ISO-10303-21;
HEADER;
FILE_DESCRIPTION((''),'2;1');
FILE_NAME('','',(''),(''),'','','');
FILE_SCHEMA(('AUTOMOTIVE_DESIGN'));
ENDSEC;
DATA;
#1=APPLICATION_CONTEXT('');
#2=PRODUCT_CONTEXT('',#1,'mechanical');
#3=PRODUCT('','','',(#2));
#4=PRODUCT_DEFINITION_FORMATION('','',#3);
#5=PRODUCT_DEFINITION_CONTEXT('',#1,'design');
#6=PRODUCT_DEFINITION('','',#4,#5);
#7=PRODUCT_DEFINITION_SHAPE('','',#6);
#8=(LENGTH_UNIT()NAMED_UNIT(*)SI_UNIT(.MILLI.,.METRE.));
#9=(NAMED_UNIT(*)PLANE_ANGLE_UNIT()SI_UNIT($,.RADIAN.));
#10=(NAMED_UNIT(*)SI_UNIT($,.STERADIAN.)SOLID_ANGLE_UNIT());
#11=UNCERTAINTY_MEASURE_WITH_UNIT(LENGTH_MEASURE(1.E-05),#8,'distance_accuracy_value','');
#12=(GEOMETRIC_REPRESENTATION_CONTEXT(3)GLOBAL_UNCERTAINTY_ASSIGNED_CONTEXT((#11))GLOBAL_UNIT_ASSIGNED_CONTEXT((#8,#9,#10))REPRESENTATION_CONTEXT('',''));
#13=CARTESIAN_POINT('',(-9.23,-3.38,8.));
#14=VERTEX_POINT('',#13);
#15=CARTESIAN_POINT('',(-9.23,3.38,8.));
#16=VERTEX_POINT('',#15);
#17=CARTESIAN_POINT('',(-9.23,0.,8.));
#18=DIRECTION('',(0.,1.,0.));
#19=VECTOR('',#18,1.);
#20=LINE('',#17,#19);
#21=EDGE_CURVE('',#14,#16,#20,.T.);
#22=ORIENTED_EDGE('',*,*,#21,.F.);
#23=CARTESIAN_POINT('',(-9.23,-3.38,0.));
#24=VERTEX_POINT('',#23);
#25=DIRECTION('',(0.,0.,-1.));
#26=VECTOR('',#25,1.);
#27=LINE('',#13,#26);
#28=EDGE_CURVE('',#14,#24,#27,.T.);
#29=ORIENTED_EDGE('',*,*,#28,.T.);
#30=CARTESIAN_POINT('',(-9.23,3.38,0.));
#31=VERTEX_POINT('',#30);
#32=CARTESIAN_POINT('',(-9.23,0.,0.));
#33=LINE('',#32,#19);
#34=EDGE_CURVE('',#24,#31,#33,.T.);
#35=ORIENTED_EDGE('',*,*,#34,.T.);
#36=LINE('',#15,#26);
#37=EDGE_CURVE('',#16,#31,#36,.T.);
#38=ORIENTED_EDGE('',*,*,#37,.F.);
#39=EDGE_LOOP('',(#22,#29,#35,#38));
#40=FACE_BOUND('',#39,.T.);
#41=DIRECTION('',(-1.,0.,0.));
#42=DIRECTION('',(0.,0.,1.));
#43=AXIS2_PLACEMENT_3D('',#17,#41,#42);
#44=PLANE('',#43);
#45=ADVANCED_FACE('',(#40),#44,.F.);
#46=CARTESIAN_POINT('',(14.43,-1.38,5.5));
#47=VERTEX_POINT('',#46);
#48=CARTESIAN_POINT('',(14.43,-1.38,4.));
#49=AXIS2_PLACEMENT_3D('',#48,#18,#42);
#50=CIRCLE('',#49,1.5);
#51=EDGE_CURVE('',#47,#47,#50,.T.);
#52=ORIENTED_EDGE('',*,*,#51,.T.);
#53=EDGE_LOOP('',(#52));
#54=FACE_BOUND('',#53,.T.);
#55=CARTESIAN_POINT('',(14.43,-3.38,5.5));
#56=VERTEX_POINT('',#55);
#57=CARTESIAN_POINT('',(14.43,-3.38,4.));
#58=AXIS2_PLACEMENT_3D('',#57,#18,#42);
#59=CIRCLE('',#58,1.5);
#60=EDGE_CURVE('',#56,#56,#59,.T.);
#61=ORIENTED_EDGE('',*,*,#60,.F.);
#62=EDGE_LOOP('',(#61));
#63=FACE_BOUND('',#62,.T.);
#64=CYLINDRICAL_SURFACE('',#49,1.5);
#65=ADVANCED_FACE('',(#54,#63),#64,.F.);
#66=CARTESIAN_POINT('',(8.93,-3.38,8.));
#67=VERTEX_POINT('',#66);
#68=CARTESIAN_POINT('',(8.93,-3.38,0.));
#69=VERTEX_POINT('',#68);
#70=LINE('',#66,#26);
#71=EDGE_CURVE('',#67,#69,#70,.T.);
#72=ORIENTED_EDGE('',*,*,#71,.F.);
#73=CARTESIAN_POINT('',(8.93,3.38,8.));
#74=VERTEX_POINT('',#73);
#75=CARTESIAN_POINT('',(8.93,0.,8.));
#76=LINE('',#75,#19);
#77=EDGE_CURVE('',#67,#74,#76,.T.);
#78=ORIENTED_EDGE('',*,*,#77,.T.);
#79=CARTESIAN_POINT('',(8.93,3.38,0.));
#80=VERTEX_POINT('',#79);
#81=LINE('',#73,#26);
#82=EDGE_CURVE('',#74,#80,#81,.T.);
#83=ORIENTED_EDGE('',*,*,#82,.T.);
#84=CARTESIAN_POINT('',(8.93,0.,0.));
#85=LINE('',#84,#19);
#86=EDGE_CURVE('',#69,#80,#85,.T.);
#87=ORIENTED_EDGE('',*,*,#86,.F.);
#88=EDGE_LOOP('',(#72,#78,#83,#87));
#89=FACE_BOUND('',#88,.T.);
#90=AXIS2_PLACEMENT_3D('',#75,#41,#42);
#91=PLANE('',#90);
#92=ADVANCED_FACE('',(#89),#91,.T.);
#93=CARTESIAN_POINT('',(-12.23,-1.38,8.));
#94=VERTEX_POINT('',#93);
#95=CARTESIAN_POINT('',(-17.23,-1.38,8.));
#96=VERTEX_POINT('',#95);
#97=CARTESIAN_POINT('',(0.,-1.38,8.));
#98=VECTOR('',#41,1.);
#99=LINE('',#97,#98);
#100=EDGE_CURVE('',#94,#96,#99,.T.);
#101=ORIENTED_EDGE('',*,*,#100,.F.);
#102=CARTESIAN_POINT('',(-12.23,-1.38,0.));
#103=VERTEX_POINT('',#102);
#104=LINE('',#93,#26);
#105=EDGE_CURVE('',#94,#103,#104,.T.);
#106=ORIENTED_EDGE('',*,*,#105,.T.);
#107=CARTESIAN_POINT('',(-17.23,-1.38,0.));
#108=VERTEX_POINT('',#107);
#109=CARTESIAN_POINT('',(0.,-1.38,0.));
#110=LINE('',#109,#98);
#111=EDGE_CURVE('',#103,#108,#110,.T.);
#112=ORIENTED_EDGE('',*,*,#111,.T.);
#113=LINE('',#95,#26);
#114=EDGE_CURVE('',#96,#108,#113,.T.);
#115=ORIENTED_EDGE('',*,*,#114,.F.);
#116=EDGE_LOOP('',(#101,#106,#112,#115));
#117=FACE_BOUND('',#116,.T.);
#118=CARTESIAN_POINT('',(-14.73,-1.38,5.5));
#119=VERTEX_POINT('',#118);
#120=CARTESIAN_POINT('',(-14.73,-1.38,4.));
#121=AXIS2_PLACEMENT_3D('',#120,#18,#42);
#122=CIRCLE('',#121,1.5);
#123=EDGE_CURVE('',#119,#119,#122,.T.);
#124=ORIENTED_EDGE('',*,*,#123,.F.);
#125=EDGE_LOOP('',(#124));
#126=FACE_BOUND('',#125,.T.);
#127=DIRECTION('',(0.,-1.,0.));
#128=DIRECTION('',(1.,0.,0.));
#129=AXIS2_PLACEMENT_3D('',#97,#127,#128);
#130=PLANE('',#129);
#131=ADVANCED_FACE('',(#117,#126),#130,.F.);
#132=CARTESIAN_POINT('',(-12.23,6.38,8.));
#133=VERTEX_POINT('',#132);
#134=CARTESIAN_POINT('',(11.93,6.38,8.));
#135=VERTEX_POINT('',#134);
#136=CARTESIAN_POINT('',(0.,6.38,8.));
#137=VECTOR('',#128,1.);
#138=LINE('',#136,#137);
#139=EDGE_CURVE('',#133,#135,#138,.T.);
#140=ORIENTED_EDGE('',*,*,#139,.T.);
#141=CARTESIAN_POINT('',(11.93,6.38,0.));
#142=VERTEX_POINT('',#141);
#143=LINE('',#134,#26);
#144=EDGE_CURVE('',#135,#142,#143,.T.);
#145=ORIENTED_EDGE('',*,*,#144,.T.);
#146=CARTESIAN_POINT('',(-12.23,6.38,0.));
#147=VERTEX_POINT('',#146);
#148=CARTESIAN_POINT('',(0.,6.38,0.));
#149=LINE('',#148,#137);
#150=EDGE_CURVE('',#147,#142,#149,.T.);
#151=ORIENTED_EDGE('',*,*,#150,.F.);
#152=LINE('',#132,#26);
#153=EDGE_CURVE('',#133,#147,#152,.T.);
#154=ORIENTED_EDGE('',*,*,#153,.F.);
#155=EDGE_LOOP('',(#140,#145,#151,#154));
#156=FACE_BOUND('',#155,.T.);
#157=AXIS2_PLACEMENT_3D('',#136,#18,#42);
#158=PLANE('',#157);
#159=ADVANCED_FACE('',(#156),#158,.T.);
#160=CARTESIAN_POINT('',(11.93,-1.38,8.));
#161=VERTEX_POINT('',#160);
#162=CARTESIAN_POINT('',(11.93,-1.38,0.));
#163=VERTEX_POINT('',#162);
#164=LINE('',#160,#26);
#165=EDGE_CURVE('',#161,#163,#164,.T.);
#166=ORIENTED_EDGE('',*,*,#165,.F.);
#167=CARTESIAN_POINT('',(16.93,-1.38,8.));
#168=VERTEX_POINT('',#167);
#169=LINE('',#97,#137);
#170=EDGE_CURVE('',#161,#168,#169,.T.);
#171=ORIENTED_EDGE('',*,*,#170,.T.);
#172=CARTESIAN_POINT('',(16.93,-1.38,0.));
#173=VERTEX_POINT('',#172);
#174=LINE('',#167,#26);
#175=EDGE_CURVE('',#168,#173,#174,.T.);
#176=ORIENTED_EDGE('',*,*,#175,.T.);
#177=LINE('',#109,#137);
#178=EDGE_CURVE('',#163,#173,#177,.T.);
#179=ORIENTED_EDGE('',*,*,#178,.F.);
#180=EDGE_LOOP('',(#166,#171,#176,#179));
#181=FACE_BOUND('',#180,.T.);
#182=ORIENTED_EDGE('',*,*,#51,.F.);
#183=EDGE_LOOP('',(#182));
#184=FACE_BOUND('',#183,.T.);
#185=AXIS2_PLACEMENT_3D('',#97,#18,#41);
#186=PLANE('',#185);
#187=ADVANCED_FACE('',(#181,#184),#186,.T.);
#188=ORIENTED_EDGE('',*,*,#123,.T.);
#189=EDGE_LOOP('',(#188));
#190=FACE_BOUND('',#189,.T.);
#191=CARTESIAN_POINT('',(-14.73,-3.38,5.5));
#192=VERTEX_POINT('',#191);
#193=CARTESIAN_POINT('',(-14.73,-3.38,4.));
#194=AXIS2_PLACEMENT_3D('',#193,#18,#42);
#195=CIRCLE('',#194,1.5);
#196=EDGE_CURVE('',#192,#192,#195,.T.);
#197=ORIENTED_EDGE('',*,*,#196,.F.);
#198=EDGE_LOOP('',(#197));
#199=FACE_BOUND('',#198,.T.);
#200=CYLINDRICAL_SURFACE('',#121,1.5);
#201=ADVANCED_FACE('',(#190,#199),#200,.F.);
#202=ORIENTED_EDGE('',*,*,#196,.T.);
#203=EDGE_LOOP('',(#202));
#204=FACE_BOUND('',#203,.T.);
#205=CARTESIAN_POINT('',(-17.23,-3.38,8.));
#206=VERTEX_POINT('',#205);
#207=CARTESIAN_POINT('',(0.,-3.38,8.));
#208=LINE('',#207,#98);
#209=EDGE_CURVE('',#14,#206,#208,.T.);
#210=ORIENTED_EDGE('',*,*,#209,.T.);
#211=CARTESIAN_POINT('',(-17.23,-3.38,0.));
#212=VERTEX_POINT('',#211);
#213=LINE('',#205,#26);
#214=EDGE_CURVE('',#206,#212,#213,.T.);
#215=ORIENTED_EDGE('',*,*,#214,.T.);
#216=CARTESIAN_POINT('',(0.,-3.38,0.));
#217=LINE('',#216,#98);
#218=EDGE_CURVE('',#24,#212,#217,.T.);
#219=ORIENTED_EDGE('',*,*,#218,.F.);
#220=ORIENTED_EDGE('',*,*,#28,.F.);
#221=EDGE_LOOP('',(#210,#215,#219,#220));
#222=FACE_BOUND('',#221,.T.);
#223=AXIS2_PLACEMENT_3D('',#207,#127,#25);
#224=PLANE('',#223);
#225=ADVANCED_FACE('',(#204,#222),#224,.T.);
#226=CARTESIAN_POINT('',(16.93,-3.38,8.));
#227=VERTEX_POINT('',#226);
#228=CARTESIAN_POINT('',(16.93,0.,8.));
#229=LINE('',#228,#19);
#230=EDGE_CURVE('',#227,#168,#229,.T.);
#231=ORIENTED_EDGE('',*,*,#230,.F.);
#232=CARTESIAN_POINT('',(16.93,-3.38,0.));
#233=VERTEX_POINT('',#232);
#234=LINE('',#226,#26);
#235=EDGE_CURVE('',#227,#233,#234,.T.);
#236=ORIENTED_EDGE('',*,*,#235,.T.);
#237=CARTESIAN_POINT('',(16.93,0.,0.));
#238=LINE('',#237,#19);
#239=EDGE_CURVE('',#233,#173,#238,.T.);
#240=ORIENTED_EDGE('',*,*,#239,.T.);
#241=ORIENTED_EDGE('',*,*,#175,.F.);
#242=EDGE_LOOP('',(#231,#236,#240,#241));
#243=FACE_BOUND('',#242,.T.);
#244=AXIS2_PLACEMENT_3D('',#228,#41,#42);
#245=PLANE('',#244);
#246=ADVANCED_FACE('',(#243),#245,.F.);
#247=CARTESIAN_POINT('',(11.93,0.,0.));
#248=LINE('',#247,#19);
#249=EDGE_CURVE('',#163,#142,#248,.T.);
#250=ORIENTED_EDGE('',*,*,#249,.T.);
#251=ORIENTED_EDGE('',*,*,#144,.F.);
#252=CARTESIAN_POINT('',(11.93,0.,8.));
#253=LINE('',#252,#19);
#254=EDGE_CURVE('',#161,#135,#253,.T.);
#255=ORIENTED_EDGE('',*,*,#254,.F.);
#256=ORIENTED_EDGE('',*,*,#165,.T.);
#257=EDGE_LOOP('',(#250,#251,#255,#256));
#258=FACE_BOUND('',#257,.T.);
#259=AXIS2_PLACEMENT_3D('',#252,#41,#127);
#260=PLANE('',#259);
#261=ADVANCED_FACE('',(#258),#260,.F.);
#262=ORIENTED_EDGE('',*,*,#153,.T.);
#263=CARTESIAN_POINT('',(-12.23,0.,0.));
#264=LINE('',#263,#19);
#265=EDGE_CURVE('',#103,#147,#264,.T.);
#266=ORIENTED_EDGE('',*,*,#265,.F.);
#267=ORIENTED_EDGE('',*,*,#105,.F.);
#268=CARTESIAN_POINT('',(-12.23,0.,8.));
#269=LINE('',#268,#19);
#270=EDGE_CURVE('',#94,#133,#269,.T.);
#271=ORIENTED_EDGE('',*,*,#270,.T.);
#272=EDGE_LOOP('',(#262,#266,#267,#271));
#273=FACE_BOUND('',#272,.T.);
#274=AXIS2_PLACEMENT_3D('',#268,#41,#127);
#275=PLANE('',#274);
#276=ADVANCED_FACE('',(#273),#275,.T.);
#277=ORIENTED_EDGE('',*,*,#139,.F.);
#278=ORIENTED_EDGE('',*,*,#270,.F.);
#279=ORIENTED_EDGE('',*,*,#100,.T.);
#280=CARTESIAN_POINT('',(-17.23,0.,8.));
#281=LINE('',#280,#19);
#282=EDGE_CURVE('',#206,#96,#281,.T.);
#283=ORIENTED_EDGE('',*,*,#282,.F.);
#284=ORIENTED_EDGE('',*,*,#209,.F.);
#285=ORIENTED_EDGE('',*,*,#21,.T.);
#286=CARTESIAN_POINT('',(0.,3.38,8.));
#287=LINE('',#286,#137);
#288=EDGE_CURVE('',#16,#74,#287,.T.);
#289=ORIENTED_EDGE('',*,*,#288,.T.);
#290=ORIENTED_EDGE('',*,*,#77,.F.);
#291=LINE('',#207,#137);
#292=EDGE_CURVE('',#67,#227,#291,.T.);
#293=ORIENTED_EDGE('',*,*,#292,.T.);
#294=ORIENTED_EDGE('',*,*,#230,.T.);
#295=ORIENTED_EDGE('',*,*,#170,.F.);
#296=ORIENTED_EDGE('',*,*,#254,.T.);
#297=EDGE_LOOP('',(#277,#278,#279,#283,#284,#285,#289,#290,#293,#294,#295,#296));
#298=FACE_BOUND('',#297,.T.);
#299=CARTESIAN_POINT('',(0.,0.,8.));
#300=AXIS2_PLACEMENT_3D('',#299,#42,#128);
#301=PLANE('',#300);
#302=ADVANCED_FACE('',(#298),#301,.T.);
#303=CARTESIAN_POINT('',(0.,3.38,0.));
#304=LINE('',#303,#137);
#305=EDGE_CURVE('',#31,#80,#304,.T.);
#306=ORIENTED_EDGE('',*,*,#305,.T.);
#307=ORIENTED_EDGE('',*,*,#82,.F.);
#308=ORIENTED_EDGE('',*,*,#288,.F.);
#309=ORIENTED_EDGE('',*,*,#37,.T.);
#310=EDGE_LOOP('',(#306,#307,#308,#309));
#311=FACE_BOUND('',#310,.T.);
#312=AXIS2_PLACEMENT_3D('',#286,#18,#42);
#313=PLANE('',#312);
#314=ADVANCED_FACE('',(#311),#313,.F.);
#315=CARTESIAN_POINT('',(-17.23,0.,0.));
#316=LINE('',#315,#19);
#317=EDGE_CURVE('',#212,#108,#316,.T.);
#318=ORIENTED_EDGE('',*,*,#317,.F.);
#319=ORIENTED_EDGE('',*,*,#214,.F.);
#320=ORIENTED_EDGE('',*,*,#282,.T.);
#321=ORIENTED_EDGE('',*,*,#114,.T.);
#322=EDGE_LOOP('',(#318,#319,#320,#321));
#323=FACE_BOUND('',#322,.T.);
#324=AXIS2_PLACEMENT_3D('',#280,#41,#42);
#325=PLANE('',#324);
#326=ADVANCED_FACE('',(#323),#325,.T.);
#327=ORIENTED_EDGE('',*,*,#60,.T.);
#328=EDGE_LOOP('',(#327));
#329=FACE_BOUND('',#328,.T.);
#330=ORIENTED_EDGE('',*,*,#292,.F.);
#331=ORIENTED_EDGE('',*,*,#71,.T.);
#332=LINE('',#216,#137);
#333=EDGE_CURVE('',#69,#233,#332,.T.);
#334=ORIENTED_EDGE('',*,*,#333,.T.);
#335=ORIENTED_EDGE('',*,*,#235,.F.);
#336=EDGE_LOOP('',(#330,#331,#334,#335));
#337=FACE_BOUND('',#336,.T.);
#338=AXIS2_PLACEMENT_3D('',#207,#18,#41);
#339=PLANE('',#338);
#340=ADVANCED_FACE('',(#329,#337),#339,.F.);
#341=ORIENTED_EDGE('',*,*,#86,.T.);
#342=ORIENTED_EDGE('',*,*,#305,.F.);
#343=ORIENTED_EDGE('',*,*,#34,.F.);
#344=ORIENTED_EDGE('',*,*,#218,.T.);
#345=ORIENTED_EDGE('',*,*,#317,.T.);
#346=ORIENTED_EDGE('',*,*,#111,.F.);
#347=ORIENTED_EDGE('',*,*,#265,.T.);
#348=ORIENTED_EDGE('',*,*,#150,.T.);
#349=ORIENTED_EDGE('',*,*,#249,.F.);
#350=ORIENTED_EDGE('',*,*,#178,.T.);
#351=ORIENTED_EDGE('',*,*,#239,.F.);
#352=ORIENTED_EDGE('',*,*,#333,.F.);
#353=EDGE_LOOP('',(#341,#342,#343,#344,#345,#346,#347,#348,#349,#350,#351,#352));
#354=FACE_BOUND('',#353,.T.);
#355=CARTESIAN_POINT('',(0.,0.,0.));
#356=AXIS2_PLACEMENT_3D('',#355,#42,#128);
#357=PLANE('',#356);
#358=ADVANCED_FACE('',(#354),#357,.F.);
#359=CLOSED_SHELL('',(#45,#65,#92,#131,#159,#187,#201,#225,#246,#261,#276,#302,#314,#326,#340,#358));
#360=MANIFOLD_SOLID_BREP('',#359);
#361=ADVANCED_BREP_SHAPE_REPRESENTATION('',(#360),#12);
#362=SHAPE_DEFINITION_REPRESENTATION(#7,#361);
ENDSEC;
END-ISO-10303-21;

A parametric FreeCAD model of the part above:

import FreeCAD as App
import Part
import Sketcher
Q = App.Units.Quantity

doc = App.newDocument("Part")
body = doc.addObject("PartDesign::Body", "Body")

# Sketch on XY plane
sketch1 = doc.addObject("Sketcher::SketchObject", "Sketch")
body.addObject(sketch1)
sketch1.AttachmentSupport = (doc.XY_Plane, [""])
sketch1.MapMode = "FlatFace"
sketch1.addGeometry(Part.LineSegment(App.Vector(16.9, -3.4, 0), App.Vector(16.9, -1.4, 0)), False)
sketch1.addGeometry(Part.LineSegment(App.Vector(16.9, -1.4, 0), App.Vector(11.9, -1.4, 0)), False)
sketch1.addGeometry(Part.LineSegment(App.Vector(11.9, -1.4, 0), App.Vector(11.9, 6.4, 0)), False)
sketch1.addGeometry(Part.LineSegment(App.Vector(11.9, 6.4, 0), App.Vector(-12.2, 6.4, 0)), False)
sketch1.addGeometry(Part.LineSegment(App.Vector(-12.2, 6.4, 0), App.Vector(-12.2, -1.4, 0)), False)
sketch1.addGeometry(Part.LineSegment(App.Vector(-12.2, -1.4, 0), App.Vector(-17.2, -1.4, 0)), False)
sketch1.addGeometry(Part.LineSegment(App.Vector(-17.2, -1.4, 0), App.Vector(-17.2, -3.4, 0)), False)
sketch1.addGeometry(Part.LineSegment(App.Vector(-17.2, -3.4, 0), App.Vector(-9.2, -3.4, 0)), False)
sketch1.addGeometry(Part.LineSegment(App.Vector(-9.2, -3.4, 0), App.Vector(-9.2, 3.4, 0)), False)
sketch1.addGeometry(Part.LineSegment(App.Vector(-9.2, 3.4, 0), App.Vector(8.9, 3.4, 0)), False)
sketch1.addGeometry(Part.LineSegment(App.Vector(8.9, 3.4, 0), App.Vector(8.9, -3.4, 0)), False)
sketch1.addGeometry(Part.LineSegment(App.Vector(8.9, -3.4, 0), App.Vector(16.9, -3.4, 0)), False)
sketch1.addConstraint(Sketcher.Constraint("Coincident", 0, 2, 1, 1))
sketch1.addConstraint(Sketcher.Constraint("Coincident", 1, 2, 2, 1))
sketch1.addConstraint(Sketcher.Constraint("Coincident", 2, 2, 3, 1))
sketch1.addConstraint(Sketcher.Constraint("Coincident", 3, 2, 4, 1))
sketch1.addConstraint(Sketcher.Constraint("Coincident", 4, 2, 5, 1))
sketch1.addConstraint(Sketcher.Constraint("Coincident", 5, 2, 6, 1))
sketch1.addConstraint(Sketcher.Constraint("Coincident", 6, 2, 7, 1))
sketch1.addConstraint(Sketcher.Constraint("Coincident", 7, 2, 8, 1))
sketch1.addConstraint(Sketcher.Constraint("Coincident", 8, 2, 9, 1))
sketch1.addConstraint(Sketcher.Constraint("Coincident", 9, 2, 10, 1))
sketch1.addConstraint(Sketcher.Constraint("Coincident", 10, 2, 11, 1))
sketch1.addConstraint(Sketcher.Constraint("Coincident", 11, 2, 0, 1))
sketch1.addConstraint(Sketcher.Constraint("Vertical", 0))
sketch1.addConstraint(Sketcher.Constraint("Horizontal", 1))
sketch1.addConstraint(Sketcher.Constraint("Vertical", 2))
sketch1.addConstraint(Sketcher.Constraint("Horizontal", 3))
sketch1.addConstraint(Sketcher.Constraint("Vertical", 4))
sketch1.addConstraint(Sketcher.Constraint("Horizontal", 5))
sketch1.addConstraint(Sketcher.Constraint("Vertical", 6))
sketch1.addConstraint(Sketcher.Constraint("Horizontal", 7))
sketch1.addConstraint(Sketcher.Constraint("Vertical", 8))
sketch1.addConstraint(Sketcher.Constraint("Horizontal", 9))
sketch1.addConstraint(Sketcher.Constraint("Vertical", 10))
sketch1.addConstraint(Sketcher.Constraint("Horizontal", 11))
sketch1.addConstraint(Sketcher.Constraint("Horizontal", 1, 2, 4, 2))
sketch1.addConstraint(Sketcher.Constraint("Horizontal", 7, 2, 10, 2))
sketch1.addConstraint(Sketcher.Constraint("Equal", 1, 5))
sketch1.addConstraint(Sketcher.Constraint("Equal", 7, 11))
sketch1.addConstraint(Sketcher.Constraint("DistanceX", 1, 2, 1, 1, Q("5 mm")))
sketch1.addConstraint(Sketcher.Constraint("DistanceX", 7, 1, 7, 2, Q("8 mm")))
sketch1.addConstraint(Sketcher.Constraint("DistanceY", 0, 1, 0, 2, Q("2 mm")))
sketch1.addConstraint(Sketcher.Constraint("DistanceY", 8, 2, 3, 2, Q("3 mm")))
sketch1.addConstraint(Sketcher.Constraint("DistanceX", 3, 2, 3, 1, Q("24.16 mm")))
sketch1.addConstraint(Sketcher.Constraint("DistanceY", 2, 1, 2, 2, Q("7.76 mm")))
sketch1.addConstraint(Sketcher.Constraint("DistanceX", -1, 1, 0, 2, Q("16.93 mm")))
sketch1.addConstraint(Sketcher.Constraint("DistanceY", 0, 2, -1, 1, Q("1.38 mm")))
pad1 = doc.addObject("PartDesign::Pad", "Pad")
body.addObject(pad1)
pad1.Profile = sketch1
pad1.Length = 8

# Sketch on XZ plane
sketch2 = doc.addObject("Sketcher::SketchObject", "Sketch001")
body.addObject(sketch2)
sketch2.AttachmentSupport = (doc.XZ_Plane, [""])
sketch2.MapMode = "FlatFace"
sketch2.AttachmentOffset = App.Placement(App.Vector(0, 0, 1.38), App.Rotation())
sketch2.addGeometry(Part.Circle(App.Vector(14.4, 4, 0), App.Vector(0, 0, 1), 1.5), False)
sketch2.addGeometry(Part.Circle(App.Vector(-14.7, 4, 0), App.Vector(0, 0, 1), 1.5), False)
sketch2.addConstraint(Sketcher.Constraint("Equal", 0, 1))
sketch2.addConstraint(Sketcher.Constraint("Horizontal", 0, 3, 1, 3))
sketch2.addConstraint(Sketcher.Constraint("Diameter", 0, Q("3 mm")))
sketch2.addConstraint(Sketcher.Constraint("DistanceY", -1, 1, 0, 3, Q("4 mm")))
sketch2.addConstraint(Sketcher.Constraint("DistanceX", -1, 1, 0, 3, Q("14.43 mm")))
sketch2.addConstraint(Sketcher.Constraint("DistanceX", 1, 3, -1, 1, Q("14.73 mm")))
doc.recompute()
hole = doc.addObject("PartDesign::Hole", "Hole")
body.addObject(hole)
hole.Profile = sketch2
hole.ThreadType = "None"
hole.Diameter = 3
hole.DepthType = "ThroughAll"
hole.Reversed = True

doc.recompute()
